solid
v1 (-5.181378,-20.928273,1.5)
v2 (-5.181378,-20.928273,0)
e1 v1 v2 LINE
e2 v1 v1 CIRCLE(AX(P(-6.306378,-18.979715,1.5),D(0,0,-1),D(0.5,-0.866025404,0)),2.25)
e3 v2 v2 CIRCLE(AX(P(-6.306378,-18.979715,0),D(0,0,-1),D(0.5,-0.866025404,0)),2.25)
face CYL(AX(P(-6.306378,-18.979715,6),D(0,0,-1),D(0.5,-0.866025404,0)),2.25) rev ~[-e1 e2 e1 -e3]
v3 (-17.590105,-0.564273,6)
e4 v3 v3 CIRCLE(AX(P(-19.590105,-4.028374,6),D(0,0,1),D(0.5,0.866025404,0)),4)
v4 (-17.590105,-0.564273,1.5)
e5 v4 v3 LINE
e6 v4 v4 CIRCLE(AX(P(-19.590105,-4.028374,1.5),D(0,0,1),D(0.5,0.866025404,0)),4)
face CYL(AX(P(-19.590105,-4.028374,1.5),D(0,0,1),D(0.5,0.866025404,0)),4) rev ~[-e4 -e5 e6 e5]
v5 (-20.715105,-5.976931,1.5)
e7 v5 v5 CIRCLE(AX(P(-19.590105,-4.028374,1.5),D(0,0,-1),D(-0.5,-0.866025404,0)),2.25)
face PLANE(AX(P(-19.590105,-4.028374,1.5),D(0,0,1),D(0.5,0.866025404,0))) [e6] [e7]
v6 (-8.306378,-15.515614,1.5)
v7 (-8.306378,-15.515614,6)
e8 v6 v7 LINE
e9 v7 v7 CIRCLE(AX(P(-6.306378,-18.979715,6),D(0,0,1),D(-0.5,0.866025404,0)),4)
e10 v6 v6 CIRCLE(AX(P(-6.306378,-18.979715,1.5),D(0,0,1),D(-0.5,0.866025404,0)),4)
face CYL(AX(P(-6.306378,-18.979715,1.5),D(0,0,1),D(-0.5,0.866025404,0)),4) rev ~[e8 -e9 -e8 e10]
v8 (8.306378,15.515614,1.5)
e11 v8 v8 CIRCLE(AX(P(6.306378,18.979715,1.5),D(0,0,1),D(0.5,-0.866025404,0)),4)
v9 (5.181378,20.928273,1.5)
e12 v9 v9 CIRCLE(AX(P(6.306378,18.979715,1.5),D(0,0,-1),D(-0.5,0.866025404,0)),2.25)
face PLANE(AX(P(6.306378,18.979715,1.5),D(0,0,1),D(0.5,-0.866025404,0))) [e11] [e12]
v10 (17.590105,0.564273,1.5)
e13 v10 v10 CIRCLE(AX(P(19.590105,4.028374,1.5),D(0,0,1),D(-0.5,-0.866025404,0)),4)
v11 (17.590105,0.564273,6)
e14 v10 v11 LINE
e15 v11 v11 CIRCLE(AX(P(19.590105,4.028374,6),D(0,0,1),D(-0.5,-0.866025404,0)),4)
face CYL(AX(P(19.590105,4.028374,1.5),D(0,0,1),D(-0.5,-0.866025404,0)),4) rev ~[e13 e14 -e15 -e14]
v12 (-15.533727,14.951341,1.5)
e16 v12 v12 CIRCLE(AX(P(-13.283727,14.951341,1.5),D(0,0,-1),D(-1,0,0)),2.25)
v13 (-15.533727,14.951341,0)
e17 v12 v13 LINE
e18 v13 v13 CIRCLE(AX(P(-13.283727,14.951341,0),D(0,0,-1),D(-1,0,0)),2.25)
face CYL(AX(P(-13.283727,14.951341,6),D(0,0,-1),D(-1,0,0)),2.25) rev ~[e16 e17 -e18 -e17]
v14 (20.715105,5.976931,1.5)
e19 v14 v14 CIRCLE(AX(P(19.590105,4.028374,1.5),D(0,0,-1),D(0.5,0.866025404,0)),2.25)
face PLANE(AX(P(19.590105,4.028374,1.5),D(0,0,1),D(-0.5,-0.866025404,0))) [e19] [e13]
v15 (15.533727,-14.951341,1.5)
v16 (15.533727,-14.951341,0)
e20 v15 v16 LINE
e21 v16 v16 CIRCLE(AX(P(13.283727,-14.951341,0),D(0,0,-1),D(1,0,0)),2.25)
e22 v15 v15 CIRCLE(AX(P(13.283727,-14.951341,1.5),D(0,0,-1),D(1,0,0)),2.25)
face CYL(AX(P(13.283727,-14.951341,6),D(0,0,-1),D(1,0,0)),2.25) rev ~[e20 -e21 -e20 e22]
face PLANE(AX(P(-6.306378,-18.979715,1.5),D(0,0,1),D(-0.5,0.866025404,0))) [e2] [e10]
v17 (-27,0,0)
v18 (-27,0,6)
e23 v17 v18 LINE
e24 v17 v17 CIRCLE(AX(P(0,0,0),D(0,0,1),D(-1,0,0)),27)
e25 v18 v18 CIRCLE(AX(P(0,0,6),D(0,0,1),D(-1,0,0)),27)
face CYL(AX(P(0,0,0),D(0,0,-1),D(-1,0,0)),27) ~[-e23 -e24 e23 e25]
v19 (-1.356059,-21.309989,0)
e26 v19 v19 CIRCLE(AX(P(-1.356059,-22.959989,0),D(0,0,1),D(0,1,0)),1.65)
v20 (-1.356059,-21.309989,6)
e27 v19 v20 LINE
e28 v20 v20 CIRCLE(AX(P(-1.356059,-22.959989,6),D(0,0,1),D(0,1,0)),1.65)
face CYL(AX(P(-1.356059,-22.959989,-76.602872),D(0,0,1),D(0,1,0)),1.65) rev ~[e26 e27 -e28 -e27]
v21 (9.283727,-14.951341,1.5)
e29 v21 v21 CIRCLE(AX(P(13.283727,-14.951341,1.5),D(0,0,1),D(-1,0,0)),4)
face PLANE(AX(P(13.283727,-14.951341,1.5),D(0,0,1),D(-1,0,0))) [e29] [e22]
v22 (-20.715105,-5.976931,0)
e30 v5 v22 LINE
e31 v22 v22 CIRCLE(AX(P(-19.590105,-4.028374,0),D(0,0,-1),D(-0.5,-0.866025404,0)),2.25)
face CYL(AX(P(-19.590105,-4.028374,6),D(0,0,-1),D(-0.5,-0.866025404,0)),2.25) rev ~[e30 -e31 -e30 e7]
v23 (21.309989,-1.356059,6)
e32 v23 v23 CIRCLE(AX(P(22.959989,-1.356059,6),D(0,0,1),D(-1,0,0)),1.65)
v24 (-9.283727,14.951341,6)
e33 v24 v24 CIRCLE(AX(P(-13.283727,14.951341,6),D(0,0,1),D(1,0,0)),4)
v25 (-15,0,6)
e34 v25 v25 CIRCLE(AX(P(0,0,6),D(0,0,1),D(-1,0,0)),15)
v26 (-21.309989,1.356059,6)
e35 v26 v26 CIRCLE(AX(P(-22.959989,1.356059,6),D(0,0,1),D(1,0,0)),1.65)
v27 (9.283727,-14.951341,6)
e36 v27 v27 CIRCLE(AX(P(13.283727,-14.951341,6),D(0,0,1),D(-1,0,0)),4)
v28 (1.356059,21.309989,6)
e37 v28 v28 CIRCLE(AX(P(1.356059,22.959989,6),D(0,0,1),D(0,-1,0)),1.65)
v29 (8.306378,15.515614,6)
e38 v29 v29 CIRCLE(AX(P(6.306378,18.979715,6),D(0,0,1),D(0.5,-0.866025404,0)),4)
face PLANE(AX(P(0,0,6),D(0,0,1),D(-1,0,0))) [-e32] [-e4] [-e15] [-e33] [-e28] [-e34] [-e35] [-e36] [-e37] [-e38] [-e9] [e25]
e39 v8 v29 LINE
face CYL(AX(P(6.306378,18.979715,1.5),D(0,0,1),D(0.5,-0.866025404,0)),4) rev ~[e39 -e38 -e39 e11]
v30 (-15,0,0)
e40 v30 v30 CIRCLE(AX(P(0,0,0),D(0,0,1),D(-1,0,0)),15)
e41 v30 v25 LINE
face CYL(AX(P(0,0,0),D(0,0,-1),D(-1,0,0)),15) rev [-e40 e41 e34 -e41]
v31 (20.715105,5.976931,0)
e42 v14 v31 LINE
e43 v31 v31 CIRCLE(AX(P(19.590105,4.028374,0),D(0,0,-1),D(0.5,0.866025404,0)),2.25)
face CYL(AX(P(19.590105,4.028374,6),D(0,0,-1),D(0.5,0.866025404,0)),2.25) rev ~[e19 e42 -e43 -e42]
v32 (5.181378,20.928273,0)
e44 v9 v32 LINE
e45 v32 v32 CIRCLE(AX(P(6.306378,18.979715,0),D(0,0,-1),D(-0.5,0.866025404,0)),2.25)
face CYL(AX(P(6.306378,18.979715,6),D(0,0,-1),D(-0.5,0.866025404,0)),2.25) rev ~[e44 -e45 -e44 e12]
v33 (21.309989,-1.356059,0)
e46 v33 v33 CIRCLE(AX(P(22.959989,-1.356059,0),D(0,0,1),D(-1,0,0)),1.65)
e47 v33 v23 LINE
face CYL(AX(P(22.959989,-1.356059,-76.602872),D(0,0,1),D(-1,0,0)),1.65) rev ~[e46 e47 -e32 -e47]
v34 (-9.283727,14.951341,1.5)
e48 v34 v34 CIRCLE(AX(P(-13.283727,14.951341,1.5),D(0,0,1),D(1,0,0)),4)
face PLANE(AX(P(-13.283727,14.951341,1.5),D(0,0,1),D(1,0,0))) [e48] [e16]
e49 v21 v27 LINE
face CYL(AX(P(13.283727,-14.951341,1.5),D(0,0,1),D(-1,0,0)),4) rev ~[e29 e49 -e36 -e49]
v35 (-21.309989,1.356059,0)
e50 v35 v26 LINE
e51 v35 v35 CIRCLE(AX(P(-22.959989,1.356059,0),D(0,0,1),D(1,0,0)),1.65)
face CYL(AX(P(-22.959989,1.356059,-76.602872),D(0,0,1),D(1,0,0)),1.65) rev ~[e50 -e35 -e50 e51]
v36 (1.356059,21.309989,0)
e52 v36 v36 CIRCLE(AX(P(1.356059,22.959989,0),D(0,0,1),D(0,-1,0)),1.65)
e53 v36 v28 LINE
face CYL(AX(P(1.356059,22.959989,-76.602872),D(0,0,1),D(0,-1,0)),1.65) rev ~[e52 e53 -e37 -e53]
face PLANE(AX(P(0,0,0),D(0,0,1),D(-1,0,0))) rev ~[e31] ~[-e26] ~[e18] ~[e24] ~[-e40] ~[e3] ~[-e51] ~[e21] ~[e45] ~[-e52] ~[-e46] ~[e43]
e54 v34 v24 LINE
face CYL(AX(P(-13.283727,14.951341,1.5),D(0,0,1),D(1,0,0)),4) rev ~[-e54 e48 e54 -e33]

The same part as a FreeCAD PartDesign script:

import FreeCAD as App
import Part
import Sketcher
from FreeCAD import Vector

doc = App.newDocument("Part")
body = doc.addObject("PartDesign::Body", "Body")

# Sketch on XY plane
sketch1 = body.newObject("Sketcher::SketchObject", "Sketch")
sketch1.AttachmentSupport = (doc.getObject("XY_Plane"), [""])
sketch1.MapMode = "FlatFace"
sketch1.addGeometry([
    Part.Circle(Vector(0, 0, 0), Vector(0, 0, 1), 27),
    Part.Circle(Vector(0, 0, 0), Vector(0, 0, 1), 15),
], False)
sketch1.addConstraint([
    Sketcher.Constraint("Coincident", 0, 3, -1, 1),
    Sketcher.Constraint("Coincident", 1, 3, -1, 1),
    Sketcher.Constraint("Diameter", 0, 54.0),
    Sketcher.Constraint("Diameter", 1, 30.0),
])
pad1 = body.newObject("PartDesign::Pad", "Pad")
pad1.Profile = sketch1
pad1.Length = 6

# Sketch on XY plane
sketch2 = body.newObject("Sketcher::SketchObject", "Sketch001")
sketch2.AttachmentSupport = (doc.getObject("XY_Plane"), [""])
sketch2.MapMode = "FlatFace"
sketch2.addGeometry(Part.Circle(Vector(-22.959989, 1.356059, 0), Vector(0, 0, 1), 1.65), False)
sketch2.addConstraint([
    Sketcher.Constraint("Diameter", 0, 3.3),
    Sketcher.Constraint("DistanceX", 0, 3, -1, 1, 22.959989),
    Sketcher.Constraint("DistanceY", -1, 1, 0, 3, 1.356059),
])
doc.recompute()
hole = body.newObject("PartDesign::Hole", "Hole")
hole.Profile = sketch2
hole.ThreadType = "None"
hole.Diameter = 3.3
hole.DepthType = "ThroughAll"
hole.Reversed = True
doc.recompute()

polarpattern = body.newObject("PartDesign::PolarPattern", "PolarPattern")
polarpattern.Originals = [hole]
polarpattern.Axis = (doc.getObject("Z_Axis"), [""])
polarpattern.Angle = 360
polarpattern.Occurrences = 4
body.Tip = polarpattern

# Sketch on XY plane
sketch3 = body.newObject("Sketcher::SketchObject", "Sketch002")
sketch3.AttachmentSupport = (doc.getObject("XY_Plane"), [""])
sketch3.MapMode = "FlatFace"
sketch3.AttachmentOffset = App.Placement(Vector(0, 0, 6), App.Rotation())
sketch3.addGeometry(Part.Circle(Vector(-13.283727, 14.951341, 0), Vector(0, 0, 1), 2.25), False)
sketch3.addConstraint([
    Sketcher.Constraint("Diameter", 0, 4.5),
    Sketcher.Constraint("DistanceY", -1, 1, 0, 3, 14.951341),
    Sketcher.Constraint("DistanceX", 0, 3, -1, 1, 13.283727),
])
doc.recompute()
hole2 = body.newObject("PartDesign::Hole", "Hole001")
hole2.Profile = sketch3
hole2.ThreadType = "None"
hole2.Diameter = 4.5
hole2.DepthType = "ThroughAll"
hole2.HoleCutType = "Counterbore"
hole2.HoleCutDiameter = 8
hole2.HoleCutDepth = 4.5
doc.recompute()

polarpattern2 = body.newObject("PartDesign::PolarPattern", "PolarPattern001")
polarpattern2.Originals = [hole2]
polarpattern2.Axis = (doc.getObject("Z_Axis"), [""])
polarpattern2.Angle = 360
polarpattern2.Occurrences = 6
body.Tip = polarpattern2

doc.recompute()
